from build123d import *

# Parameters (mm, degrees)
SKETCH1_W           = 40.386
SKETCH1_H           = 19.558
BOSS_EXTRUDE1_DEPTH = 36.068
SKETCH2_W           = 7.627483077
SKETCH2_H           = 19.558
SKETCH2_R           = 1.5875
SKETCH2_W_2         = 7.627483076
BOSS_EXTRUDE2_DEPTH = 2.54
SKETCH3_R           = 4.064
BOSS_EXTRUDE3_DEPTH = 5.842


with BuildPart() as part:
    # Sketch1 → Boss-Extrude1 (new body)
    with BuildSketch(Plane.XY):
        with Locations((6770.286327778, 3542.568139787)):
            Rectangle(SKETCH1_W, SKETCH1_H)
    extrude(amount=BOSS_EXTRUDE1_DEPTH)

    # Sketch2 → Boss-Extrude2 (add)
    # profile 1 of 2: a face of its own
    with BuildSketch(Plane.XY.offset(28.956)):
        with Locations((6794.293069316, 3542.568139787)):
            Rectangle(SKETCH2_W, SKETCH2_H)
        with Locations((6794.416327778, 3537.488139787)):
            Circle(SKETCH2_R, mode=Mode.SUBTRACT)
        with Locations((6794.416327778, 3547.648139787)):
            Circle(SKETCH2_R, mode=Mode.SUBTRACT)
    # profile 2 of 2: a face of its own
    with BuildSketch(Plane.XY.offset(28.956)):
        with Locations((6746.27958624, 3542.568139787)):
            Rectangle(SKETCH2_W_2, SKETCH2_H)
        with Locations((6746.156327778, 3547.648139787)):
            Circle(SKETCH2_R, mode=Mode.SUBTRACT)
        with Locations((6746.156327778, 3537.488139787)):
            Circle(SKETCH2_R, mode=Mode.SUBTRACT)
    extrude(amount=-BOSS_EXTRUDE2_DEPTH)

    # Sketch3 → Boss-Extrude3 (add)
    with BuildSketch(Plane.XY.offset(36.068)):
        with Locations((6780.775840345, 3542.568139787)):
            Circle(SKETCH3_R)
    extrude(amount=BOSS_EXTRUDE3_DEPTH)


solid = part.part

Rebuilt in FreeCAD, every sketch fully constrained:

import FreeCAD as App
import Part
import Sketcher

V = App.Vector
Q = App.Units.Quantity

doc = App.newDocument("Part")
params = doc.addObject("Spreadsheet::Sheet", "Params")
for row, (alias, value) in enumerate([
    ("sketch1_width", "1.59 in"),
    ("sketch1_height", "0.77 in"),
    ("pad1_length", "1.42 in"),
    ("sketch2_diameter", "0.125 in"),
    ("sketch2_height", "0.77 in"),
    ("pad2_length", "0.1 in"),
    ("sketch3_diameter", "0.32 in"),
    ("pad3_length", "0.23 in"),
], start=1):
    params.set(f"A{row}", alias)
    params.set(f"B{row}", "=" + value)
    params.setAlias(f"B{row}", alias)

body = doc.addObject("PartDesign::Body", "Body")

# Sketch on XY plane
sketch1 = body.newObject("Sketcher::SketchObject", "Sketch")
sketch1.AttachmentSupport = (doc.getObject("XY_Plane"), [""])
sketch1.MapMode = "FlatFace"
sketch1.addGeometry([
    Part.LineSegment(V(6750.093328, 3552.34714, 0), V(6750.093328, 3532.78914, 0)),
    Part.LineSegment(V(6750.093328, 3532.78914, 0), V(6790.479328, 3532.78914, 0)),
    Part.LineSegment(V(6790.479328, 3532.78914, 0), V(6790.479328, 3552.34714, 0)),
    Part.LineSegment(V(6790.479328, 3552.34714, 0), V(6750.093328, 3552.34714, 0)),
], False)
sketch1.addConstraint([
    Sketcher.Constraint("Coincident", 0, 2, 1, 1),
    Sketcher.Constraint("Coincident", 1, 2, 2, 1),
    Sketcher.Constraint("Coincident", 2, 2, 3, 1),
    Sketcher.Constraint("Coincident", 3, 2, 0, 1),
    Sketcher.Constraint("Vertical", 0),
    Sketcher.Constraint("Horizontal", 1),
    Sketcher.Constraint("Vertical", 2),
    Sketcher.Constraint("Horizontal", 3),
    Sketcher.Constraint("DistanceX", 1, 1, 1, 2, Q("1.59 in")),
    Sketcher.Constraint("DistanceY", 0, 2, 0, 1, Q("0.77 in")),
    Sketcher.Constraint("DistanceY", -1, 1, 0, 2, 3532.78914),
    Sketcher.Constraint("DistanceX", -1, 1, 0, 2, 6750.093328),
])
sketch1.setExpression("Constraints[8]", "Params.sketch1_width")
sketch1.setExpression("Constraints[9]", "Params.sketch1_height")
pad1 = body.newObject("PartDesign::Pad", "Pad")
pad1.Profile = sketch1
pad1.setExpression("Length", "Params.pad1_length")

# Sketch on XY plane
sketch2 = body.newObject("Sketcher::SketchObject", "Sketch001")
sketch2.AttachmentSupport = (doc.getObject("XY_Plane"), [""])
sketch2.MapMode = "FlatFace"
sketch2.AttachmentOffset = App.Placement(V(0, 0, 1.14 * 25.4), App.Rotation())
sketch2.addGeometry([
    Part.LineSegment(V(6790.479328, 3552.34714, 0), V(6790.479328, 3532.78914, 0)),  # 0
    Part.LineSegment(V(6790.479328, 3532.78914, 0), V(6798.106811, 3532.78914, 0)),  # 1
    Part.LineSegment(V(6798.106811, 3532.78914, 0), V(6798.106811, 3552.34714, 0)),  # 2
    Part.LineSegment(V(6798.106811, 3552.34714, 0), V(6790.479328, 3552.34714, 0)),  # 3
    Part.Circle(V(6794.416328, 3537.48814, 0), V(0, 0, 1), 1.5875),  # 4
    Part.Circle(V(6794.416328, 3547.64814, 0), V(0, 0, 1), 1.5875),  # 5
    Part.LineSegment(V(6742.465845, 3552.34714, 0), V(6742.465845, 3532.78914, 0)),  # 6
    Part.LineSegment(V(6742.465845, 3532.78914, 0), V(6750.093328, 3532.78914, 0)),  # 7
    Part.LineSegment(V(6750.093328, 3532.78914, 0), V(6750.093328, 3552.34714, 0)),  # 8
    Part.LineSegment(V(6750.093328, 3552.34714, 0), V(6742.465845, 3552.34714, 0)),  # 9
    Part.Circle(V(6746.156328, 3537.48814, 0), V(0, 0, 1), 1.5875),  # 10
    Part.Circle(V(6746.156328, 3547.64814, 0), V(0, 0, 1), 1.5875),  # 11
], False)
sketch2.addConstraint([
    Sketcher.Constraint("Coincident", 0, 2, 1, 1),
    Sketcher.Constraint("Coincident", 1, 2, 2, 1),
    Sketcher.Constraint("Coincident", 2, 2, 3, 1),
    Sketcher.Constraint("Coincident", 3, 2, 0, 1),
    Sketcher.Constraint("Coincident", 6, 2, 7, 1),
    Sketcher.Constraint("Coincident", 7, 2, 8, 1),
    Sketcher.Constraint("Coincident", 8, 2, 9, 1),
    Sketcher.Constraint("Coincident", 9, 2, 6, 1),
    Sketcher.Constraint("Vertical", 0),
    Sketcher.Constraint("Horizontal", 1),
    Sketcher.Constraint("Vertical", 2),
    Sketcher.Constraint("Horizontal", 3),
    Sketcher.Constraint("Vertical", 6),
    Sketcher.Constraint("Horizontal", 7),
    Sketcher.Constraint("Vertical", 8),
    Sketcher.Constraint("Horizontal", 9),
    Sketcher.Constraint("Equal", 4, 5),
    Sketcher.Constraint("Equal", 5, 10),
    Sketcher.Constraint("Equal", 10, 11),
    Sketcher.Constraint("Horizontal", 4, 3, 10, 3),
    Sketcher.Constraint("Horizontal", 5, 3, 11, 3),
    Sketcher.Constraint("Horizontal", 1, 2, 6, 2),
    Sketcher.Constraint("Horizontal", 3, 2, 8, 2),
    Sketcher.Constraint("Vertical", 4, 3, 5, 3),
    Sketcher.Constraint("Vertical", 10, 3, 11, 3),
    Sketcher.Constraint("Equal", 3, 7),
    Sketcher.Constraint("Diameter", 4, Q("0.125 in")),
    Sketcher.Constraint("DistanceY", 0, 2, 0, 1, Q("0.77 in")),
    Sketcher.Constraint("DistanceY", 4, 3, 5, 3, Q("0.4 in")),
    Sketcher.Constraint("DistanceX", 10, 3, 4, 3, Q("1.9 in")),
    Sketcher.Constraint("DistanceX", 7, 2, 0, 2, Q("1.59 in")),
    Sketcher.Constraint("DistanceX", 0, 2, 4, 3, Q("0.155 in")),
    Sketcher.Constraint("DistanceY", 0, 2, 4, 3, Q("0.185 in")),
    Sketcher.Constraint("DistanceX", 1, 1, 1, 2, 7.627483),
    Sketcher.Constraint("DistanceY", -1, 1, 4, 3, 3537.48814),
    Sketcher.Constraint("DistanceX", -1, 1, 1, 2, 6798.106811),
])
sketch2.setExpression("Constraints[26]", "Params.sketch2_diameter")
sketch2.setExpression("Constraints[27]", "Params.sketch2_height")
pad2 = body.newObject("PartDesign::Pad", "Pad001")
pad2.Profile = sketch2
pad2.setExpression("Length", "Params.pad2_length")
pad2.Reversed = True

# Sketch on XY plane
sketch3 = body.newObject("Sketcher::SketchObject", "Sketch002")
sketch3.AttachmentSupport = (doc.getObject("XY_Plane"), [""])
sketch3.MapMode = "FlatFace"
sketch3.AttachmentOffset = App.Placement(V(0, 0, 1.42 * 25.4), App.Rotation())
sketch3.addGeometry(Part.Circle(V(6780.77584, 3542.56814, 0), V(0, 0, 1), 4.064), False)
sketch3.addConstraint([
    Sketcher.Constraint("Diameter", 0, Q("0.32 in")),
    Sketcher.Constraint("DistanceX", -1, 1, 0, 3, 6780.77584),
    Sketcher.Constraint("DistanceY", -1, 1, 0, 3, 3542.56814),
])
sketch3.setExpression("Constraints[0]", "Params.sketch3_diameter")
pad3 = body.newObject("PartDesign::Pad", "Pad002")
pad3.Profile = sketch3
pad3.setExpression("Length", "Params.pad3_length")

doc.recompute()
